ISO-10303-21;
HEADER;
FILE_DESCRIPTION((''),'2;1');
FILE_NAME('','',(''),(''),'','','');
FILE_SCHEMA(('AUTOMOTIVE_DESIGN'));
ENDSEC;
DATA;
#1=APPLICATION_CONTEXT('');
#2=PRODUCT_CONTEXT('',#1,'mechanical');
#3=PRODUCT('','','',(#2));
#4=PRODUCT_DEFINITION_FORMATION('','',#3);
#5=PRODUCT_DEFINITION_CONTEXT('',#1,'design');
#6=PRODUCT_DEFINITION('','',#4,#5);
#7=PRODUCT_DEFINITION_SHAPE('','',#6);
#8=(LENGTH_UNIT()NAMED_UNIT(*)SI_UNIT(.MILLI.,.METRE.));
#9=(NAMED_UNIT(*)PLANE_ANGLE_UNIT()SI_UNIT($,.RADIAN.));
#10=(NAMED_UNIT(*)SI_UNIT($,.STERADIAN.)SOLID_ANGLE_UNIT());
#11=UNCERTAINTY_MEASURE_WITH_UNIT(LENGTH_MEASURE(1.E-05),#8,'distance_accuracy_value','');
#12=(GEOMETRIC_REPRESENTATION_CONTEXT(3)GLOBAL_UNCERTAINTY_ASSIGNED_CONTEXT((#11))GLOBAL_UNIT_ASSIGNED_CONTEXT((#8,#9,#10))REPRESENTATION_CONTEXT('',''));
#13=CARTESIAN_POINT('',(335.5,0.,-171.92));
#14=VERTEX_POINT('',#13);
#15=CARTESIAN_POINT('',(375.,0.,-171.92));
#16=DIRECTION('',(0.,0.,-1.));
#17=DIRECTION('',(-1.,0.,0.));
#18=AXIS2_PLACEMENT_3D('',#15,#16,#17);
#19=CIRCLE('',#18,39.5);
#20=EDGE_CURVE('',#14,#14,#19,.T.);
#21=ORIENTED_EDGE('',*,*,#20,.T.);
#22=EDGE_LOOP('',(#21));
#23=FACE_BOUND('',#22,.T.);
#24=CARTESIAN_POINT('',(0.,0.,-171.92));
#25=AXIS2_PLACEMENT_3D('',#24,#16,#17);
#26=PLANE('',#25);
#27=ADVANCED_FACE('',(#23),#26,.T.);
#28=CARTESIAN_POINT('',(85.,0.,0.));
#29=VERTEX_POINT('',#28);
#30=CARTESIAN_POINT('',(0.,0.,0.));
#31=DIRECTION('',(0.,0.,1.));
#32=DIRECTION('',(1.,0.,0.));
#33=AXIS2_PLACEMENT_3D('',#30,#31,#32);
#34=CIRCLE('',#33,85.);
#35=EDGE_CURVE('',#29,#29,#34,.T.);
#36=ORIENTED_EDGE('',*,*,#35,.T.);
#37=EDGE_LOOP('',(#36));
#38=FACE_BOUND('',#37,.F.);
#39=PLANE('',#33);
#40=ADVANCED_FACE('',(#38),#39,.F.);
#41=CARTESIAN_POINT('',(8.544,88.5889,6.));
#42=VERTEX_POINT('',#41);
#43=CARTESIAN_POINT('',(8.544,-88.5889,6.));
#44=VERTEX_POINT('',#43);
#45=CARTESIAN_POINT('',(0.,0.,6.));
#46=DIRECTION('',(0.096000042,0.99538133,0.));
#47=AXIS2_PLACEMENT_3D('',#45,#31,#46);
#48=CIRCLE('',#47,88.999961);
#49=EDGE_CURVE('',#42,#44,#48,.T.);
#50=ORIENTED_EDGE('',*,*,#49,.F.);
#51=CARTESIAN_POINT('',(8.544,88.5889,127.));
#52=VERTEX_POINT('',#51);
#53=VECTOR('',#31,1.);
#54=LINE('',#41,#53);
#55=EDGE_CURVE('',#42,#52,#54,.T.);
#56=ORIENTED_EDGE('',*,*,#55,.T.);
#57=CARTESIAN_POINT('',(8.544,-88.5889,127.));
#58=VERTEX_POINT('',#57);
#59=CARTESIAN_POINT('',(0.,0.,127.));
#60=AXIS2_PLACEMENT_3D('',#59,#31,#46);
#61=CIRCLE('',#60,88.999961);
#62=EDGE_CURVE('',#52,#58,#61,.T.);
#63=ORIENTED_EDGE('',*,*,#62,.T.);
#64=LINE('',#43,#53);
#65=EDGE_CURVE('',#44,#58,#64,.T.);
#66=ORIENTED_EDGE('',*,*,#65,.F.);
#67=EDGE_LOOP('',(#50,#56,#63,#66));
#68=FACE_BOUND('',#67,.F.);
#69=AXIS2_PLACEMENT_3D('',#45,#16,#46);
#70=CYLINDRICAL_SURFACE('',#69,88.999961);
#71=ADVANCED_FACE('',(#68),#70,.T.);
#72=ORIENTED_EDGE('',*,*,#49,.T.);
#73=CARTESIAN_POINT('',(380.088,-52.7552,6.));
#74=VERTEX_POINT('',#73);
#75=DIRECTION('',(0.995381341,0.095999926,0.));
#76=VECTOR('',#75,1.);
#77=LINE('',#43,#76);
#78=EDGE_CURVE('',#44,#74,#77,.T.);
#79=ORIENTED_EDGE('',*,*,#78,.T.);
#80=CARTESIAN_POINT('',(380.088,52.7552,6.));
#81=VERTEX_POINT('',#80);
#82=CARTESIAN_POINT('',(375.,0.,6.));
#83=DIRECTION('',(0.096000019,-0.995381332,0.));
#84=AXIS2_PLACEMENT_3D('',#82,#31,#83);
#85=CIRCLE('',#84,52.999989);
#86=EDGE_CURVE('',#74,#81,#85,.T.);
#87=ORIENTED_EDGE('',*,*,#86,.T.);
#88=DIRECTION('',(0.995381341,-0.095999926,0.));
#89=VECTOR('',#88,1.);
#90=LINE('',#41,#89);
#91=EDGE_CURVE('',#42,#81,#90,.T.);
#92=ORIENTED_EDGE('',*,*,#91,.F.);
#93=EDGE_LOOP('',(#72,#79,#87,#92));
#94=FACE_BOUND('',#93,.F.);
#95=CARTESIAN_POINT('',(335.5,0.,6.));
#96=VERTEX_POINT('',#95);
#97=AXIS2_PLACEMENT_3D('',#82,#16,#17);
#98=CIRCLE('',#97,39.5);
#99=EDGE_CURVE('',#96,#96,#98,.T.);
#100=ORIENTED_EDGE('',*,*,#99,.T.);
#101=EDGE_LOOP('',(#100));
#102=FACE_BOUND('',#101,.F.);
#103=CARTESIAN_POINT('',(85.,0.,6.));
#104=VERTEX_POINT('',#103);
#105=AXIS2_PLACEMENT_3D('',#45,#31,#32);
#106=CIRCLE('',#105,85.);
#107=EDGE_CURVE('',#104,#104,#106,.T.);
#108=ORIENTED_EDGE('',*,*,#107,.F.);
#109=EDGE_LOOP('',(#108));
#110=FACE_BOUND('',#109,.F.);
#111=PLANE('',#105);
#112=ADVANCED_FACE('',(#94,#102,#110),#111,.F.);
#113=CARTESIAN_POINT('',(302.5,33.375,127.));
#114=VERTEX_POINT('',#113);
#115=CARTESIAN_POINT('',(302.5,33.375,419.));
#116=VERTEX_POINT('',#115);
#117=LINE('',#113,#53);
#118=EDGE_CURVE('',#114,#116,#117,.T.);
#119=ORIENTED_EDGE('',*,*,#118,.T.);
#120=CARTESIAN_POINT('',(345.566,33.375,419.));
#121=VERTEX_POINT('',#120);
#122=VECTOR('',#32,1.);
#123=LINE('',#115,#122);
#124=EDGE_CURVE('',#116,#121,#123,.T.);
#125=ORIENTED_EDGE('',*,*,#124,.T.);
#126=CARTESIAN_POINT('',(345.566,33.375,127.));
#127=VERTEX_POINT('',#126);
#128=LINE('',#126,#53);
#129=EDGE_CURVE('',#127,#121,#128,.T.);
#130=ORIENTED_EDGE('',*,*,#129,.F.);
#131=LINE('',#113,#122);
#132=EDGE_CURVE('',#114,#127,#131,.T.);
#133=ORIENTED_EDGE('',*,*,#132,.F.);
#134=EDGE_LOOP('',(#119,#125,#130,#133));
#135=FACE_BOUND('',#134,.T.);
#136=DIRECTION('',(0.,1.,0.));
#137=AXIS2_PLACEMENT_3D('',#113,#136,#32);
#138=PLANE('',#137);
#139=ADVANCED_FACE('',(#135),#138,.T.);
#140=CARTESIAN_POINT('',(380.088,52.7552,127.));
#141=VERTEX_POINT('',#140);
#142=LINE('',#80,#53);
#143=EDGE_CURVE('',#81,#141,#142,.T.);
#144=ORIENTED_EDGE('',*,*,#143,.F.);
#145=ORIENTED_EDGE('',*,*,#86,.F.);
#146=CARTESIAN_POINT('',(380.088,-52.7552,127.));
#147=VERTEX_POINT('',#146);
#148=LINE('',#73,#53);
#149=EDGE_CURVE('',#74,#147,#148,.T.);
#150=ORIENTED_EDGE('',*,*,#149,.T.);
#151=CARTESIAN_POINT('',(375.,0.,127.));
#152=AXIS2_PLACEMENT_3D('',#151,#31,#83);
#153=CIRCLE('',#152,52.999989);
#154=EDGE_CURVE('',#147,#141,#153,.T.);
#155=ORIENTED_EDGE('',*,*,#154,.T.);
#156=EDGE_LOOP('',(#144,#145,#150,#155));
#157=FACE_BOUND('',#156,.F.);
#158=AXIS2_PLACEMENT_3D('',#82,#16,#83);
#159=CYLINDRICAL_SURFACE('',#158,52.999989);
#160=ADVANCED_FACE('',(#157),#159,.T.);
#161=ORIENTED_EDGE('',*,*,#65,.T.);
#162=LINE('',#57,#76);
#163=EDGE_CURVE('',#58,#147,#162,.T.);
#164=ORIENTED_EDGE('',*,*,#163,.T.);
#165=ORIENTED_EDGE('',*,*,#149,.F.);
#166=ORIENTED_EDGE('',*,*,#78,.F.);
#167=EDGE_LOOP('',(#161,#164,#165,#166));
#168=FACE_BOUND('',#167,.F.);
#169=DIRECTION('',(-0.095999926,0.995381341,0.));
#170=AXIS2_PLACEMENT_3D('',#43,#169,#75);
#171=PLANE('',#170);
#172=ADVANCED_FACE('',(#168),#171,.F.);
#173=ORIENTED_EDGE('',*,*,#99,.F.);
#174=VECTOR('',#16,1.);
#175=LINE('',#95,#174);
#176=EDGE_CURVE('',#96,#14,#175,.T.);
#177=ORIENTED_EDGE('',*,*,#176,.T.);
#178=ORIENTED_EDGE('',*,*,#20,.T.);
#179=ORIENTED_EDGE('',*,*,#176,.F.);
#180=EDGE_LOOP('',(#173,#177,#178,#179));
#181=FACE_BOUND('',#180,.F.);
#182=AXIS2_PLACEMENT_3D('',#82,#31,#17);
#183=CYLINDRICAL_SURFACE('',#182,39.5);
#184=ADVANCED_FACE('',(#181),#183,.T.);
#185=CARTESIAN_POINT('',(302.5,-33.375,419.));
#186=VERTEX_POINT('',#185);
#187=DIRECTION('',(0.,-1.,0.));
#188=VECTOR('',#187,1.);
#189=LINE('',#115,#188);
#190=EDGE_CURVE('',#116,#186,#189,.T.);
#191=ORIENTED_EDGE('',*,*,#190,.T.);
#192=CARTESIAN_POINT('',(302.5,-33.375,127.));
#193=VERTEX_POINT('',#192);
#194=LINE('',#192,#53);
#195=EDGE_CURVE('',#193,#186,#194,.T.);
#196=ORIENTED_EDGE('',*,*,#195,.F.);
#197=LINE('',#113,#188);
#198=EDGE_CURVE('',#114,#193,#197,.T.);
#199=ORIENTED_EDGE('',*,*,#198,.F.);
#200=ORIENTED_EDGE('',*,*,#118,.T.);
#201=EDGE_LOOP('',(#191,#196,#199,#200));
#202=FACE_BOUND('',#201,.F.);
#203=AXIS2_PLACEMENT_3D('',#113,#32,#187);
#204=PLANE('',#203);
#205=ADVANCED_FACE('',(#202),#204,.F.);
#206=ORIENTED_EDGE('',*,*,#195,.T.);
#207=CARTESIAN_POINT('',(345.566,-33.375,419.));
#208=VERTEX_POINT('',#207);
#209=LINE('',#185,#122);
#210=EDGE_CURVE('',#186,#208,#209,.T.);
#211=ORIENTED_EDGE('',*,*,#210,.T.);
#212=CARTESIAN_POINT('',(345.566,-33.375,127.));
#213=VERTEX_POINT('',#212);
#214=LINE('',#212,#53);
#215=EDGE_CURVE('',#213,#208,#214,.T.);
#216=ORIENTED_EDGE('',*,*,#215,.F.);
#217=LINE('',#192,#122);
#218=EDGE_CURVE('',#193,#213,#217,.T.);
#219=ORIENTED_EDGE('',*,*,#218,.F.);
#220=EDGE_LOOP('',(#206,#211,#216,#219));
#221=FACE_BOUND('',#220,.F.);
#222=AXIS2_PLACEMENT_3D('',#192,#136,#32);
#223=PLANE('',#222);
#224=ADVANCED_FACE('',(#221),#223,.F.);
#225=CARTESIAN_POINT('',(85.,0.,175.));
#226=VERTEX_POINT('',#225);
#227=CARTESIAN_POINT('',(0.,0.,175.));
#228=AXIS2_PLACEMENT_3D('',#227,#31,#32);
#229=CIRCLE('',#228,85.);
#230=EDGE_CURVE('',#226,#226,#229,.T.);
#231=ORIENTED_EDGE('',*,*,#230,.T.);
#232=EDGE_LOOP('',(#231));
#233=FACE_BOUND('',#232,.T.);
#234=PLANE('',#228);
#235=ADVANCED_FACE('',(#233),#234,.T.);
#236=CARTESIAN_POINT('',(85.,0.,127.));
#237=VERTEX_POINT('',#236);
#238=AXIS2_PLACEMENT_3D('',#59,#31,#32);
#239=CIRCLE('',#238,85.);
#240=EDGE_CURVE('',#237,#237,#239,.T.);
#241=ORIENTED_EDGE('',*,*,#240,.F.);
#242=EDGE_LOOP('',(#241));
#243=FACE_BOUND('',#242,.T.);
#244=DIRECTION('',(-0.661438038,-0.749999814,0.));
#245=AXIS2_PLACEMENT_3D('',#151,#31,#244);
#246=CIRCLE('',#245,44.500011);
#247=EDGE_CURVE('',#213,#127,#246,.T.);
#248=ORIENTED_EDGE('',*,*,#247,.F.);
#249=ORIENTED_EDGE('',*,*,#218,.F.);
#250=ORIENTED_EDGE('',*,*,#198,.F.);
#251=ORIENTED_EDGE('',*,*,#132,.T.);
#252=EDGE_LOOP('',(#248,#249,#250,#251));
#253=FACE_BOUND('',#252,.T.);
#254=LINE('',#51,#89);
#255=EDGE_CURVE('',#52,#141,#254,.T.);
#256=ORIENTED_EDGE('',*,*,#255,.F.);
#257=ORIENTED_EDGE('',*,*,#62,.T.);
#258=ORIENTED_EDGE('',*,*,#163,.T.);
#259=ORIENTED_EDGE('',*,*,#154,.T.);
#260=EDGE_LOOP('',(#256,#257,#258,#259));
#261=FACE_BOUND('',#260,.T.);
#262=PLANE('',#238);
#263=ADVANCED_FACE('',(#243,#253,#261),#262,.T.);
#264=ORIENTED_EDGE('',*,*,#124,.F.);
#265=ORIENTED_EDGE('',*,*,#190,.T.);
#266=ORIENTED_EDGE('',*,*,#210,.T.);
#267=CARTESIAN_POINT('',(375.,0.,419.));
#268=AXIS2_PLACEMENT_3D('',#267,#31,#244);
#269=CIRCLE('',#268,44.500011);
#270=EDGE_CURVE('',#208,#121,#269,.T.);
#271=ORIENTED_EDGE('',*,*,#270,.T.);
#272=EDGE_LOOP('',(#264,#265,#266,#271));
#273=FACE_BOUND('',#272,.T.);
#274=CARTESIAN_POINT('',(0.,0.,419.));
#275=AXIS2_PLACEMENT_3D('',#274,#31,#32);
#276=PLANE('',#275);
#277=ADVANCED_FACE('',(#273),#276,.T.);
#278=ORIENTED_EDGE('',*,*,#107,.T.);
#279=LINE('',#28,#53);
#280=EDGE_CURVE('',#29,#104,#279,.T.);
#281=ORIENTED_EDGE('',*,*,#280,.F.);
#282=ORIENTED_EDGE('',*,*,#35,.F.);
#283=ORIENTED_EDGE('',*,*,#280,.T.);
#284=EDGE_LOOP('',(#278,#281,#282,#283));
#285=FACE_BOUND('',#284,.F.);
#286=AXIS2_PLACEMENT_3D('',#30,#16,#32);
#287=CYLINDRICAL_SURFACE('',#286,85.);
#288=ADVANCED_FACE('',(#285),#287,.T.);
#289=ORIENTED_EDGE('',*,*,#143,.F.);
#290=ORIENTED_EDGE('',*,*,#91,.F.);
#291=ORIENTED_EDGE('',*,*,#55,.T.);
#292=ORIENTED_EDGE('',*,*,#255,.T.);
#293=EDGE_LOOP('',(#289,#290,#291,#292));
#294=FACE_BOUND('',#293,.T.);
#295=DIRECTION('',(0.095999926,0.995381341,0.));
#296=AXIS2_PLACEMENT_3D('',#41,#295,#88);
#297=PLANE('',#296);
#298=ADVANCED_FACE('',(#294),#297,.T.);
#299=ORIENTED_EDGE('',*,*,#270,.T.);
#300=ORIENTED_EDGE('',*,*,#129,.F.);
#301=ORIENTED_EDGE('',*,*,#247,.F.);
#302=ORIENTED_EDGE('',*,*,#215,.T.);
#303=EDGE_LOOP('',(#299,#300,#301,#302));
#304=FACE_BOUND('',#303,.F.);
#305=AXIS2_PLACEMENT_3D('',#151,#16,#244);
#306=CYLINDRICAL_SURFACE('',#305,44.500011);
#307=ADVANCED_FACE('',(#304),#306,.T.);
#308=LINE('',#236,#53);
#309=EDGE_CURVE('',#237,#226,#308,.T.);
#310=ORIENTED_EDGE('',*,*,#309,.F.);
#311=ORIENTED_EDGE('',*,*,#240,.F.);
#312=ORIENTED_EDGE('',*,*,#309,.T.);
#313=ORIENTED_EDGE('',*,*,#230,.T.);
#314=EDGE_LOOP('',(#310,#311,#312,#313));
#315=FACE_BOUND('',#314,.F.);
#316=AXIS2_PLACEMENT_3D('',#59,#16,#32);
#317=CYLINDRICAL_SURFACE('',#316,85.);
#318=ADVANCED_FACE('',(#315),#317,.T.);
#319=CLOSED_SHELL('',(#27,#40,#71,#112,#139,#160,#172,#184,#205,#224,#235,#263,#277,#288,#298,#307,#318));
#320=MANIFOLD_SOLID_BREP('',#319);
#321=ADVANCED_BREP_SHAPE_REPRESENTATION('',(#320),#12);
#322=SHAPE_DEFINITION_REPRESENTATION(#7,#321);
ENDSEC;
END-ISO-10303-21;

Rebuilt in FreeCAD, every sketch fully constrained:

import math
import FreeCAD as App
import Part
import Sketcher
from FreeCAD import Vector

doc = App.newDocument("Part")
body = doc.addObject("PartDesign::Body", "Body")

# Sketch on XY plane
sketch1 = doc.addObject("Sketcher::SketchObject", "Sketch")
body.addObject(sketch1)
sketch1.AttachmentSupport = (doc.XY_Plane, [""])
sketch1.MapMode = "FlatFace"
sketch1.addGeometry(Part.Circle(Vector(0, 0, 0), Vector(0, 0, 1), 85), False)
sketch1.addConstraint([
    Sketcher.Constraint("Coincident", 0, 3, -1, 1),
    Sketcher.Constraint("Diameter", 0, 170.0),
])
pad1 = doc.addObject("PartDesign::Pad", "Pad")
body.addObject(pad1)
pad1.Profile = sketch1
pad1.Length = 6

# Sketch on XY plane
sketch2 = doc.addObject("Sketcher::SketchObject", "Sketch001")
body.addObject(sketch2)
sketch2.AttachmentSupport = (doc.XY_Plane, [""])
sketch2.MapMode = "FlatFace"
sketch2.AttachmentOffset = App.Placement(Vector(0, 0, 6), App.Rotation())
sketch2.addGeometry([
    Part.LineSegment(Vector(380, 53, 0), Vector(9, 89, 0)),
    Part.ArcOfCircle(Part.Circle(Vector(0, 0, 0), Vector(0, 0, 1), 89), math.radians(84), math.radians(276)),
    Part.LineSegment(Vector(9, -89, 0), Vector(380, -53, 0)),
    Part.ArcOfCircle(Part.Circle(Vector(375, 0, 0), Vector(0, 0, 1), 53), math.radians(-84), math.radians(84)),
], False)
sketch2.addConstraint([
    Sketcher.Constraint("Tangent", 0, 2, 1, 1),
    Sketcher.Constraint("Tangent", 1, 2, 2, 1),
    Sketcher.Constraint("Tangent", 2, 2, 3, 1),
    Sketcher.Constraint("Tangent", 3, 2, 0, 1),
    Sketcher.Constraint("Coincident", 1, 3, -1, 1),
    Sketcher.Constraint("PointOnObject", 3, 3, -1),
    Sketcher.Constraint("Radius", 1, 89.0),
    Sketcher.Constraint("Radius", 3, 53.0),
    Sketcher.Constraint("DistanceX", -1, 1, 3, 3, 375.0),
])
pad2 = doc.addObject("PartDesign::Pad", "Pad001")
body.addObject(pad2)
pad2.Profile = sketch2
pad2.Length = 121

# Sketch on XY plane
sketch3 = doc.addObject("Sketcher::SketchObject", "Sketch002")
body.addObject(sketch3)
sketch3.AttachmentSupport = (doc.XY_Plane, [""])
sketch3.MapMode = "FlatFace"
sketch3.AttachmentOffset = App.Placement(Vector(0, 0, 127), App.Rotation())
sketch3.addGeometry(Part.Circle(Vector(0, 0, 0), Vector(0, 0, 1), 85), False)
sketch3.addConstraint([
    Sketcher.Constraint("Coincident", 0, 3, -1, 1),
    Sketcher.Constraint("Diameter", 0, 170.0),
])
pad3 = doc.addObject("PartDesign::Pad", "Pad002")
body.addObject(pad3)
pad3.Profile = sketch3
pad3.Length = 48

# Sketch on XY plane
sketch4 = doc.addObject("Sketcher::SketchObject", "Sketch003")
body.addObject(sketch4)
sketch4.AttachmentSupport = (doc.XY_Plane, [""])
sketch4.MapMode = "FlatFace"
sketch4.AttachmentOffset = App.Placement(Vector(0, 0, 127), App.Rotation())
sketch4.addGeometry([
    Part.LineSegment(Vector(346, 33, 0), Vector(302, 33, 0)),
    Part.LineSegment(Vector(302, 33, 0), Vector(302, -33, 0)),
    Part.LineSegment(Vector(302, -33, 0), Vector(346, -33, 0)),
    Part.ArcOfCircle(Part.Circle(Vector(375, 0, 0), Vector(0, 0, 1), 45), math.radians(-131), math.radians(131)),
], False)
sketch4.addConstraint([
    Sketcher.Constraint("Coincident", 0, 2, 1, 1),
    Sketcher.Constraint("Coincident", 1, 2, 2, 1),
    Sketcher.Constraint("Coincident", 2, 2, 3, 1),
    Sketcher.Constraint("Coincident", 3, 2, 0, 1),
    Sketcher.Constraint("Horizontal", 0),
    Sketcher.Constraint("Vertical", 1),
    Sketcher.Constraint("Horizontal", 2),
    Sketcher.Constraint("Symmetric", 2, 2, 3, 2, -1),
    Sketcher.Constraint("Radius", 3, 44.5),
    Sketcher.Constraint("DistanceY", 1, 2, 1, 1, 66.75),
    Sketcher.Constraint("DistanceX", 0, 2, 3, 3, 72.5),
    Sketcher.Constraint("DistanceX", -1, 1, 3, 3, 375.0),
])
pad4 = doc.addObject("PartDesign::Pad", "Pad003")
body.addObject(pad4)
pad4.Profile = sketch4
pad4.Length = 292

# Sketch on XY plane
sketch5 = doc.addObject("Sketcher::SketchObject", "Sketch004")
body.addObject(sketch5)
sketch5.AttachmentSupport = (doc.XY_Plane, [""])
sketch5.MapMode = "FlatFace"
sketch5.AttachmentOffset = App.Placement(Vector(0, 0, 6), App.Rotation())
sketch5.addGeometry(Part.Circle(Vector(375, 0, 0), Vector(0, 0, 1), 40), False)
sketch5.addConstraint([
    Sketcher.Constraint("PointOnObject", 0, 3, -1),
    Sketcher.Constraint("Diameter", 0, 79.0),
    Sketcher.Constraint("DistanceX", -1, 1, 0, 3, 375.0),
])
pad5 = doc.addObject("PartDesign::Pad", "Pad004")
body.addObject(pad5)
pad5.Profile = sketch5
pad5.Length = 177.92
pad5.Reversed = True

doc.recompute()
